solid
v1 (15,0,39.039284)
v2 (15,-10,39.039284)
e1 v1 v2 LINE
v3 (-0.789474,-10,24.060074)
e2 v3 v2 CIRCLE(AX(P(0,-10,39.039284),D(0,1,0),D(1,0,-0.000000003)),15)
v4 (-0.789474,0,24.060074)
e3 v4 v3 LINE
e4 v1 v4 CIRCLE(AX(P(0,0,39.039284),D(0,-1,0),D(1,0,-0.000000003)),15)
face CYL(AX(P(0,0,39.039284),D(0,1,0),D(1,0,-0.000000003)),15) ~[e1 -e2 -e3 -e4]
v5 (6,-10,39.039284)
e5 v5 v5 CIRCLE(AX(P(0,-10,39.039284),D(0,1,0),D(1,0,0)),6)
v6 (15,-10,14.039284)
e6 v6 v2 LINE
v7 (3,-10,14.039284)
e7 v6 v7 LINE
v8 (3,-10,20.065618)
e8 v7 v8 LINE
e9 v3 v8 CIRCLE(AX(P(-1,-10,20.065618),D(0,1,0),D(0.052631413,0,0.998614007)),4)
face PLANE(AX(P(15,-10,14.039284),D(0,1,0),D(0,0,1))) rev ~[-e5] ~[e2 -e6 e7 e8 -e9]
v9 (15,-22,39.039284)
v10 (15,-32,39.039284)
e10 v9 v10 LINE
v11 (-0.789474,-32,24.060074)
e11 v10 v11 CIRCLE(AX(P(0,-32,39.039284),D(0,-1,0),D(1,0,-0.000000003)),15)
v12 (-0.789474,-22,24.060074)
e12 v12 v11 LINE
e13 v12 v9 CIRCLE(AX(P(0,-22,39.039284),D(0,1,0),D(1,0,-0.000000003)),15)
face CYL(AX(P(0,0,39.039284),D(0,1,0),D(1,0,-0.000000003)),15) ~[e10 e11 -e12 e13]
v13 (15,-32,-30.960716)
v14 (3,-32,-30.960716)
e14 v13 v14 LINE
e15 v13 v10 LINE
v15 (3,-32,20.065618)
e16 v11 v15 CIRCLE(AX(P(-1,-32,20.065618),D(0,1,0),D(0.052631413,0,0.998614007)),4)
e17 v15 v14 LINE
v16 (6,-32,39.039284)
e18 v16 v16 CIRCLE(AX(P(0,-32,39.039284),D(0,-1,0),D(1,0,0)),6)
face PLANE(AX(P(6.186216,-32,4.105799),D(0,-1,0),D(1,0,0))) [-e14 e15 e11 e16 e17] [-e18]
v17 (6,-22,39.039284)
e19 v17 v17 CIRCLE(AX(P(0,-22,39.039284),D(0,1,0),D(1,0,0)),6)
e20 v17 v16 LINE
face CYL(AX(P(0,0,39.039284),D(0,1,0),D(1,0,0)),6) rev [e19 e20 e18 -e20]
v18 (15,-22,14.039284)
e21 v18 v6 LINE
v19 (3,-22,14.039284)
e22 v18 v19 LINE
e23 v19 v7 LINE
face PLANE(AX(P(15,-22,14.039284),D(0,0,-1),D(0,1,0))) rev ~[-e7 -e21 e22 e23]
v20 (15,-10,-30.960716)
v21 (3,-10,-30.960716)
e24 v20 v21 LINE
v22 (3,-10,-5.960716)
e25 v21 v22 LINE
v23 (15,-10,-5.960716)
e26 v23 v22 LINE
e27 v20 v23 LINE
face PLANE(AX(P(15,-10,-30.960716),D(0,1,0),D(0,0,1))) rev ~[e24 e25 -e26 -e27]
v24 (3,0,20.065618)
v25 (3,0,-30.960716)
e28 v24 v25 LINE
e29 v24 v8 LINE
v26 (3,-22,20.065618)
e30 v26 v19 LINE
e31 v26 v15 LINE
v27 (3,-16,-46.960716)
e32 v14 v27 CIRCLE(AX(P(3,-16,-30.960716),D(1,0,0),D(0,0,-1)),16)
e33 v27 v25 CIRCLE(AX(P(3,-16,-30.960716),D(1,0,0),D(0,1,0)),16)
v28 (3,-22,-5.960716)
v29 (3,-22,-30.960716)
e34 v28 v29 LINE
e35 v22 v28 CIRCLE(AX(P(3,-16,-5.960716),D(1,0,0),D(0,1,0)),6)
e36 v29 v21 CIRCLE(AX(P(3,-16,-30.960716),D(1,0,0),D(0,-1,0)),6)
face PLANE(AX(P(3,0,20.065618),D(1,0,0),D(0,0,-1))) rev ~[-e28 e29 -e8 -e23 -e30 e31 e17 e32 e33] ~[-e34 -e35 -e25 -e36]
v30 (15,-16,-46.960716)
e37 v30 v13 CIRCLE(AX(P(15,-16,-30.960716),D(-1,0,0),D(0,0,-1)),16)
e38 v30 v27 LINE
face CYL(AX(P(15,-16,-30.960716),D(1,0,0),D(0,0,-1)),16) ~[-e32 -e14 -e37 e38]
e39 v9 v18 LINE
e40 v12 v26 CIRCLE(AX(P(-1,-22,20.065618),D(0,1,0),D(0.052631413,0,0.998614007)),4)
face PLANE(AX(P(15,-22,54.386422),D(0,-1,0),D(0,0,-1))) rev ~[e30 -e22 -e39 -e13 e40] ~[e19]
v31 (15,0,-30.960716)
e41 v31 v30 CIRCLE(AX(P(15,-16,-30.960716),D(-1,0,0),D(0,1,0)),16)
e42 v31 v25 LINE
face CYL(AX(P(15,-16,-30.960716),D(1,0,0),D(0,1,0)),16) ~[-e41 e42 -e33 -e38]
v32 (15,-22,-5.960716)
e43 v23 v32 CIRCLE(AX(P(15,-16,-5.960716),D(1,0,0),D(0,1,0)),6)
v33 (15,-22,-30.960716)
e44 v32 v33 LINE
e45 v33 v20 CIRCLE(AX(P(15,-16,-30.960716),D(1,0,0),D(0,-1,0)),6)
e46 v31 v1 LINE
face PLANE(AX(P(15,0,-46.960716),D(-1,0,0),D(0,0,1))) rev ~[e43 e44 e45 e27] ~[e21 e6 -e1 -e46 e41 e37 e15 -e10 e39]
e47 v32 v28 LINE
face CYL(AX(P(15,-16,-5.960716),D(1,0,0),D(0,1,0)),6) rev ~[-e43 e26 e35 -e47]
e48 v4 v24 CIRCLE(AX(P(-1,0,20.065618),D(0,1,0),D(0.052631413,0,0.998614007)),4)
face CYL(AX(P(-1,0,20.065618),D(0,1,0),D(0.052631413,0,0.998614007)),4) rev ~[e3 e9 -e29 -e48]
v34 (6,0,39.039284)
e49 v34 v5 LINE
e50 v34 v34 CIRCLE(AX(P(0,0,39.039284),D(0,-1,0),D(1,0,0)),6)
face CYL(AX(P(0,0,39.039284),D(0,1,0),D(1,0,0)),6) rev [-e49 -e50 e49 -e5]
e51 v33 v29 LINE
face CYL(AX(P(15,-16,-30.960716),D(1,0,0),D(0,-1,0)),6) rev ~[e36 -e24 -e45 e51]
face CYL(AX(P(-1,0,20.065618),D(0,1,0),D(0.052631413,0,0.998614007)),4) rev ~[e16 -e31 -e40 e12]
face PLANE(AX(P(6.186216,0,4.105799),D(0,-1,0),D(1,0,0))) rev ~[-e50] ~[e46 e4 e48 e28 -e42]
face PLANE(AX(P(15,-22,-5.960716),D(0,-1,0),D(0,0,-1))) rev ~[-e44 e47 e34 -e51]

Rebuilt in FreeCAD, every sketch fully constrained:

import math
import FreeCAD as App
import Part
import Sketcher


def add_polygon(sketch, points):
    """Adds a closed chain of lines whose ends are joined by coincident constraints."""
    first, n = sketch.GeometryCount, len(points)
    for a, b in zip(points, points[1:] + points[:1]):
        sketch.addGeometry(Part.LineSegment(App.Vector(*a, 0), App.Vector(*b, 0)), False)
    for i in range(n):
        sketch.addConstraint(Sketcher.Constraint("Coincident", first + i, 2, first + (i + 1) % n, 1))

doc = App.newDocument("Part")
params = doc.addObject("Spreadsheet::Sheet", "Params")
for row, (alias, value) in enumerate([
    ("sketch1_diameter", "12 mm"),
    ("sketch1_radius", "15 mm"),
    ("sketch1_radius2", "4 mm"),
    ("sketch1_width", "12 mm"),
    ("sketch1_height", "86 mm"),
    ("pad1_length", "32 mm"),
    ("sketch2_radius", "6 mm"),
    ("sketch2_radius2", "16 mm"),
    ("sketch2_height", "25 mm"),
], start=1):
    params.set(f"A{row}", alias)
    params.set(f"B{row}", "=" + value)
    params.setAlias(f"B{row}", alias)

body = doc.addObject("PartDesign::Body", "Body")

# Sketch on XZ plane
sketch1 = body.newObject("Sketcher::SketchObject", "Sketch")
sketch1.AttachmentSupport = (doc.getObject("XZ_Plane"), [""])
sketch1.MapMode = "FlatFace"
sketch1.addGeometry(Part.LineSegment(App.Vector(15, -47, 0), App.Vector(15, 39, 0)), False)
sketch1.addGeometry(Part.ArcOfCircle(Part.Circle(App.Vector(0, 39, 0), App.Vector(0, 0, 1), 15), math.radians(0), math.radians(267)), False)
sketch1.addGeometry(Part.ArcOfCircle(Part.Circle(App.Vector(-1, 20.1, 0), App.Vector(0, 0, 1), 4), math.radians(0), math.radians(87)), False)
sketch1.addGeometry(Part.LineSegment(App.Vector(3, 20.1, 0), App.Vector(3, -47, 0)), False)
sketch1.addGeometry(Part.LineSegment(App.Vector(3, -47, 0), App.Vector(15, -47, 0)), False)
sketch1.addGeometry(Part.Circle(App.Vector(0, 39, 0), App.Vector(0, 0, 1), 6), False)
sketch1.addConstraint(Sketcher.Constraint("Tangent", 0, 2, 1, 1))
sketch1.addConstraint(Sketcher.Constraint("Tangent", 1, 2, 2, 2))
sketch1.addConstraint(Sketcher.Constraint("Tangent", 2, 1, 3, 1))
sketch1.addConstraint(Sketcher.Constraint("Coincident", 3, 2, 4, 1))
sketch1.addConstraint(Sketcher.Constraint("Coincident", 4, 2, 0, 1))
sketch1.addConstraint(Sketcher.Constraint("Vertical", 0))
sketch1.addConstraint(Sketcher.Constraint("Vertical", 3))
sketch1.addConstraint(Sketcher.Constraint("Horizontal", 4))
sketch1.addConstraint(Sketcher.Constraint("Coincident", 5, 3, 1, 3))
sketch1.addConstraint(Sketcher.Constraint("PointOnObject", 1, 3, -2))
sketch1.addConstraint(Sketcher.Constraint("Diameter", 5, 12.0))
sketch1.addConstraint(Sketcher.Constraint("Radius", 1, 15.0))
sketch1.addConstraint(Sketcher.Constraint("Radius", 2, 4.0))
sketch1.addConstraint(Sketcher.Constraint("DistanceX", 4, 1, 4, 2, 12.0))
sketch1.addConstraint(Sketcher.Constraint("DistanceY", 0, 1, 0, 2, 86.0))
sketch1.addConstraint(Sketcher.Constraint("DistanceY", -1, 1, 2, 3, 20.065618))
sketch1.setExpression("Constraints[10]", "Params.sketch1_diameter")
sketch1.setExpression("Constraints[11]", "Params.sketch1_radius")
sketch1.setExpression("Constraints[12]", "Params.sketch1_radius2")
sketch1.setExpression("Constraints[13]", "Params.sketch1_width")
sketch1.setExpression("Constraints[14]", "Params.sketch1_height")
pad1 = body.newObject("PartDesign::Pad", "Pad")
pad1.Profile = sketch1
pad1.setExpression("Length", "Params.pad1_length")

# Sketch on YZ plane
sketch2 = body.newObject("Sketcher::SketchObject", "Sketch001")
sketch2.AttachmentSupport = (doc.getObject("YZ_Plane"), [""])
sketch2.MapMode = "FlatFace"
sketch2.AttachmentOffset = App.Placement(App.Vector(0, 0, 15), App.Rotation())
add_polygon(sketch2, [(-22, 54), (-22, 14), (-10, 14), (-10, 54)])  # lines 0-3
sketch2.addGeometry(Part.LineSegment(App.Vector(-22, -6, 0), App.Vector(-22, -31, 0)), False)  # 4
sketch2.addGeometry(Part.ArcOfCircle(Part.Circle(App.Vector(-16, -31, 0), App.Vector(0, 0, 1), 6), math.radians(180), math.radians(360)), False)  # 5
sketch2.addGeometry(Part.LineSegment(App.Vector(-10, -31, 0), App.Vector(-10, -6, 0)), False)  # 6
sketch2.addGeometry(Part.ArcOfCircle(Part.Circle(App.Vector(-16, -6, 0), App.Vector(0, 0, 1), 6), math.radians(0), math.radians(180)), False)  # 7
sketch2.addGeometry(Part.ArcOfCircle(Part.Circle(App.Vector(-16, -31, 0), App.Vector(0, 0, 1), 16), math.radians(180), math.radians(270)), False)  # 8
sketch2.addGeometry(Part.LineSegment(App.Vector(-32, -31, 0), App.Vector(-32, -47, 0)), False)  # 9
sketch2.addGeometry(Part.LineSegment(App.Vector(-32, -47, 0), App.Vector(-16, -47, 0)), False)  # 10
sketch2.addGeometry(Part.ArcOfCircle(Part.Circle(App.Vector(-16, -31, 0), App.Vector(0, 0, 1), 16), math.radians(-90), math.radians(0)), False)  # 11
sketch2.addGeometry(Part.LineSegment(App.Vector(-16, -47, 0), App.Vector(0, -47, 0)), False)  # 12
sketch2.addGeometry(Part.LineSegment(App.Vector(0, -47, 0), App.Vector(0, -31, 0)), False)  # 13
sketch2.addConstraint(Sketcher.Constraint("Tangent", 4, 2, 5, 1))
sketch2.addConstraint(Sketcher.Constraint("Tangent", 5, 2, 6, 1))
sketch2.addConstraint(Sketcher.Constraint("Tangent", 6, 2, 7, 1))
sketch2.addConstraint(Sketcher.Constraint("Tangent", 7, 2, 4, 1))
sketch2.addConstraint(Sketcher.Constraint("Tangent", 8, 1, 9, 1))
sketch2.addConstraint(Sketcher.Constraint("Coincident", 9, 2, 10, 1))
sketch2.addConstraint(Sketcher.Constraint("Tangent", 10, 2, 8, 2))
sketch2.addConstraint(Sketcher.Constraint("Tangent", 11, 1, 12, 1))
sketch2.addConstraint(Sketcher.Constraint("Coincident", 12, 2, 13, 1))
sketch2.addConstraint(Sketcher.Constraint("Tangent", 13, 2, 11, 2))
sketch2.addConstraint(Sketcher.Constraint("Vertical", 0))
sketch2.addConstraint(Sketcher.Constraint("Horizontal", 1))
sketch2.addConstraint(Sketcher.Constraint("Vertical", 2))
sketch2.addConstraint(Sketcher.Constraint("Horizontal", 3))
sketch2.addConstraint(Sketcher.Constraint("Vertical", 4))
sketch2.addConstraint(Sketcher.Constraint("Vertical", 6))
sketch2.addConstraint(Sketcher.Constraint("Vertical", 9))
sketch2.addConstraint(Sketcher.Constraint("Horizontal", 10))
sketch2.addConstraint(Sketcher.Constraint("Horizontal", 12))
sketch2.addConstraint(Sketcher.Constraint("Vertical", 13))
sketch2.addConstraint(Sketcher.Constraint("Coincident", 8, 3, 5, 3))
sketch2.addConstraint(Sketcher.Constraint("Coincident", 11, 3, 5, 3))
sketch2.addConstraint(Sketcher.Constraint("Equal", 8, 11))
sketch2.addConstraint(Sketcher.Constraint("PointOnObject", 12, 2, -2))
sketch2.addConstraint(Sketcher.Constraint("Vertical", 3, 2, 4, 2))
sketch2.addConstraint(Sketcher.Constraint("Vertical", 2, 2, 5, 2))
sketch2.addConstraint(Sketcher.Constraint("Radius", 5, 6.0))
sketch2.addConstraint(Sketcher.Constraint("Radius", 8, 16.0))
sketch2.addConstraint(Sketcher.Constraint("DistanceY", 4, 2, 4, 1, 25.0))
sketch2.addConstraint(Sketcher.Constraint("DistanceY", 7, 3, 0, 2, 20.0))
sketch2.addConstraint(Sketcher.Constraint("DistanceY", 0, 2, 0, 1, 40.347138))
sketch2.addConstraint(Sketcher.Constraint("DistanceY", 5, 3, -1, 1, 30.960716))
sketch2.setExpression("Constraints[30]", "Params.sketch2_radius")
sketch2.setExpression("Constraints[31]", "Params.sketch2_radius2")
sketch2.setExpression("Constraints[32]", "Params.sketch2_height")
pocket1 = body.newObject("PartDesign::Pocket", "Pocket")
pocket1.Profile = sketch2
pocket1.Type = "ThroughAll"

doc.recompute()
